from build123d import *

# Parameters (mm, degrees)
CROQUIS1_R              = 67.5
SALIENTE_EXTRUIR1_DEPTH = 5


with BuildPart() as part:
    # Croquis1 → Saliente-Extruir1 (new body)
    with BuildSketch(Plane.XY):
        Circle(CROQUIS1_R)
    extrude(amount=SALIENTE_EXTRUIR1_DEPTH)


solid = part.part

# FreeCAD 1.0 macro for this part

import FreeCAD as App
import Part
import Sketcher
Q = App.Units.Quantity

doc = App.newDocument("Part")
params = doc.addObject("Spreadsheet::Sheet", "Params")
for row, (alias, value) in enumerate([
    ("sketch1_diameter", "135 mm"),
    ("pad1_length", "5 mm"),
], start=1):
    params.set(f"A{row}", alias)
    params.set(f"B{row}", "=" + value)
    params.setAlias(f"B{row}", alias)

body = doc.addObject("PartDesign::Body", "Body")

# Sketch on XY plane
sketch1 = body.newObject("Sketcher::SketchObject", "Sketch")
sketch1.AttachmentSupport = (doc.getObject("XY_Plane"), [""])
sketch1.MapMode = "FlatFace"
sketch1.addGeometry(Part.Circle(App.Vector(0, 0, 0), App.Vector(0, 0, 1), 67.5), False)
sketch1.addConstraint([
    Sketcher.Constraint("Coincident", 0, 3, -1, 1),
    Sketcher.Constraint("Diameter", 0, Q("135 mm")),
])
sketch1.setExpression("Constraints[1]", "Params.sketch1_diameter")
pad1 = body.newObject("PartDesign::Pad", "Pad")
pad1.Profile = sketch1
pad1.setExpression("Length", "Params.pad1_length")

doc.recompute()
